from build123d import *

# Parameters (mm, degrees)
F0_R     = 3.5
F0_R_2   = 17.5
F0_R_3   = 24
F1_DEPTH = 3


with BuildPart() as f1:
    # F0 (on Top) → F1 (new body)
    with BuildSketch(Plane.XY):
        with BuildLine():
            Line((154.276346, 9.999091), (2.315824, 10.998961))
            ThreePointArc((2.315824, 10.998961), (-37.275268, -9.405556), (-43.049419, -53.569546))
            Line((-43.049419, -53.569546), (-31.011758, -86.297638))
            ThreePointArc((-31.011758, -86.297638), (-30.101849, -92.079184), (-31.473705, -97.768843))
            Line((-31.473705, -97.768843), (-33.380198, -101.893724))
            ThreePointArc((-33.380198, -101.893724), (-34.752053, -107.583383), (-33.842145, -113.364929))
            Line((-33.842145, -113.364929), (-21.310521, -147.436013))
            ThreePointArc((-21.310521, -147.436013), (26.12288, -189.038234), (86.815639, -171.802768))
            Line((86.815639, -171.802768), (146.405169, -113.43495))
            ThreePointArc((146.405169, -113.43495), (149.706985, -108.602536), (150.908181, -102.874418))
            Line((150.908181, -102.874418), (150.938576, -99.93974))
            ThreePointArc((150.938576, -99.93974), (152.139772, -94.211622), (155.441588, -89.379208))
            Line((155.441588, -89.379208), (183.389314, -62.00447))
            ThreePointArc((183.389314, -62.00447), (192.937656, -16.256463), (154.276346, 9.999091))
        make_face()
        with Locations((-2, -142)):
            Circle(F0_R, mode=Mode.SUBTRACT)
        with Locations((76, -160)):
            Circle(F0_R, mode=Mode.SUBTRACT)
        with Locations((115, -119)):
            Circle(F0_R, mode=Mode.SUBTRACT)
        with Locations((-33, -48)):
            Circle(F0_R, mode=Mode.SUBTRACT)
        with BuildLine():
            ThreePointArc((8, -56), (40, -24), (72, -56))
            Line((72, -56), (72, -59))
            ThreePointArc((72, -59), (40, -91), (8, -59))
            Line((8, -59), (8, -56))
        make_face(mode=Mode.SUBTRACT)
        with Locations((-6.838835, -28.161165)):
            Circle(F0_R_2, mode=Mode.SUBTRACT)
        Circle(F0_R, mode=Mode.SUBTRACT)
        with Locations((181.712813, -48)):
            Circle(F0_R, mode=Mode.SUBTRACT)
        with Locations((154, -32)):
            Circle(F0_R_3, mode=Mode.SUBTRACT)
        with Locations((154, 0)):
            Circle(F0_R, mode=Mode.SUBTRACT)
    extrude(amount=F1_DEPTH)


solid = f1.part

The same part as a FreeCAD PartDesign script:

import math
import FreeCAD as App
import Part
import Sketcher

V = App.Vector
Q = App.Units.Quantity

doc = App.newDocument("Part")
body = doc.addObject("PartDesign::Body", "Body")

# Sketch on XY plane
sketch1 = body.newObject("Sketcher::SketchObject", "Sketch")
sketch1.AttachmentSupport = (doc.getObject("XY_Plane"), [""])
sketch1.MapMode = "FlatFace"
sketch1.addGeometry([
    Part.LineSegment(V(154.276346, 9.999091, 0), V(2.315824, 10.998961, 0)),  # 0
    Part.ArcOfCircle(Part.Circle(V(2, -37, 0), V(0, 0, 1), 48), math.radians(89.62301), math.radians(200.193937)),  # 1
    Part.LineSegment(V(-43.049419, -53.569546, 0), V(-31.011758, -86.297638, 0)),  # 2
    Part.ArcOfCircle(Part.Circle(V(-45.089698, -91.475621, 0), V(0, 0, 1), 14.999997), math.radians(-24.806067), math.radians(20.193942)),  # 3
    Part.LineSegment(V(-31.473705, -97.768843, 0), V(-33.380198, -101.893724, 0)),  # 4
    Part.ArcOfCircle(Part.Circle(V(-19.764192, -108.186946, 0), V(0, 0, 1), 15.000009), math.radians(155.193952), math.radians(200.193922)),  # 5
    Part.LineSegment(V(-33.842145, -113.364929, 0), V(-21.310521, -147.436013, 0)),  # 6
    Part.ArcOfCircle(Part.Circle(V(40.632431, -124.652886, 0), V(0, 0, 1), 66.000001), math.radians(-159.806063), math.radians(-45.593405)),  # 7
    Part.LineSegment(V(86.815639, -171.802768, 0), V(146.405169, -113.43495, 0)),  # 8
    Part.ArcOfCircle(Part.Circle(V(135.908981, -102.719066, 0), V(0, 0, 1), 15.000004), math.radians(-45.593398), math.radians(-0.593412)),  # 9
    Part.LineSegment(V(150.908181, -102.874418, 0), V(150.938576, -99.93974, 0)),  # 10
    Part.ArcOfCircle(Part.Circle(V(165.937776, -100.095092, 0), V(0, 0, 1), 15.000004), math.radians(134.406602), math.radians(179.406588)),  # 11
    Part.LineSegment(V(155.441588, -89.379208, 0), V(183.389314, -62.00447, 0)),  # 12
    Part.ArcOfCircle(Part.Circle(V(154, -32, 0), V(0, 0, 1), 42), math.radians(-45.593405), math.radians(89.62301)),  # 13
    Part.Circle(V(-2, -142, 0), V(0, 0, 1), 3.5),  # 14
    Part.Circle(V(76, -160, 0), V(0, 0, 1), 3.5),  # 15
    Part.Circle(V(115, -119, 0), V(0, 0, 1), 3.5),  # 16
    Part.Circle(V(-33, -48, 0), V(0, 0, 1), 3.5),  # 17
    Part.LineSegment(V(8, -59, 0), V(8, -56, 0)),  # 18
    Part.ArcOfCircle(Part.Circle(V(40, -56, 0), V(0, 0, 1), 32), math.radians(0), math.radians(180)),  # 19
    Part.LineSegment(V(72, -56, 0), V(72, -59, 0)),  # 20
    Part.ArcOfCircle(Part.Circle(V(40, -59, 0), V(0, 0, 1), 32), math.radians(180), math.radians(360)),  # 21
    Part.Circle(V(-6.838835, -28.161165, 0), V(0, 0, 1), 17.5),  # 22
    Part.Circle(V(0, 0, 0), V(0, 0, 1), 3.5),  # 23
    Part.Circle(V(181.712813, -48, 0), V(0, 0, 1), 3.5),  # 24
    Part.Circle(V(154, -32, 0), V(0, 0, 1), 24),  # 25
    Part.Circle(V(154, 0, 0), V(0, 0, 1), 3.5),  # 26
], False)
sketch1.addConstraint([
    Sketcher.Constraint("Coincident", 0, 2, 1, 1),
    Sketcher.Constraint("Coincident", 1, 2, 2, 1),
    Sketcher.Constraint("Coincident", 2, 2, 3, 2),
    Sketcher.Constraint("Coincident", 3, 1, 4, 1),
    Sketcher.Constraint("Coincident", 4, 2, 5, 1),
    Sketcher.Constraint("Coincident", 5, 2, 6, 1),
    Sketcher.Constraint("Coincident", 6, 2, 7, 1),
    Sketcher.Constraint("Coincident", 7, 2, 8, 1),
    Sketcher.Constraint("Coincident", 8, 2, 9, 1),
    Sketcher.Constraint("Coincident", 9, 2, 10, 1),
    Sketcher.Constraint("Coincident", 10, 2, 11, 2),
    Sketcher.Constraint("Coincident", 11, 1, 12, 1),
    Sketcher.Constraint("Coincident", 12, 2, 13, 1),
    Sketcher.Constraint("Coincident", 13, 2, 0, 1),
    Sketcher.Constraint("Coincident", 18, 2, 19, 2),
    Sketcher.Constraint("Coincident", 19, 1, 20, 1),
    Sketcher.Constraint("Coincident", 20, 2, 21, 2),
    Sketcher.Constraint("Coincident", 21, 1, 18, 1),
    Sketcher.Constraint("Vertical", 18),
    Sketcher.Constraint("Vertical", 20),
    Sketcher.Constraint("Coincident", 23, 3, -1, 1),
    Sketcher.Constraint("Coincident", 25, 3, 13, 3),
    Sketcher.Constraint("PointOnObject", 26, 3, -1),
    Sketcher.Constraint("Diameter", 14, Q("7 mm")),
    Sketcher.Constraint("Diameter", 15, Q("7 mm")),
    Sketcher.Constraint("Diameter", 16, Q("7 mm")),
    Sketcher.Constraint("Diameter", 17, Q("7 mm")),
    Sketcher.Constraint("Diameter", 22, Q("35 mm")),
    Sketcher.Constraint("Diameter", 23, Q("7 mm")),
    Sketcher.Constraint("Diameter", 24, Q("7 mm")),
    Sketcher.Constraint("Diameter", 25, Q("48 mm")),
    Sketcher.Constraint("Diameter", 26, Q("7 mm")),
    Sketcher.Constraint("Radius", 1, Q("48 mm")),
    Sketcher.Constraint("Radius", 7, Q("66.000001 mm")),
    Sketcher.Constraint("Radius", 13, Q("42 mm")),
    Sketcher.Constraint("Radius", 19, Q("32 mm")),
    Sketcher.Constraint("DistanceY", 18, 1, 18, 2, Q("3 mm")),
    Sketcher.Constraint("DistanceY", 20, 2, 20, 1, Q("3 mm")),
    Sketcher.Constraint("DistanceX", -1, 1, 1, 3, Q("2 mm")),
    Sketcher.Constraint("DistanceY", 1, 3, -1, 1, Q("37 mm")),
    Sketcher.Constraint("DistanceX", -1, 1, 13, 3, Q("154 mm")),
    Sketcher.Constraint("DistanceY", 13, 3, -1, 1, Q("32 mm")),
    Sketcher.Constraint("DistanceX", 14, 3, -1, 1, Q("2 mm")),
    Sketcher.Constraint("DistanceY", 14, 3, -1, 1, Q("142 mm")),
    Sketcher.Constraint("DistanceX", -1, 1, 15, 3, Q("76 mm")),
    Sketcher.Constraint("DistanceY", 15, 3, -1, 1, Q("160 mm")),
    Sketcher.Constraint("DistanceX", -1, 1, 16, 3, Q("115 mm")),
    Sketcher.Constraint("DistanceY", 16, 3, -1, 1, Q("119 mm")),
    Sketcher.Constraint("DistanceX", 17, 3, -1, 1, Q("33 mm")),
    Sketcher.Constraint("DistanceY", 17, 3, -1, 1, Q("48 mm")),
    Sketcher.Constraint("DistanceX", -1, 1, 19, 3, Q("40 mm")),
    Sketcher.Constraint("DistanceY", 19, 3, -1, 1, Q("56 mm")),
    Sketcher.Constraint("DistanceY", 21, 3, -1, 1, Q("59 mm")),
    Sketcher.Constraint("DistanceY", 24, 3, -1, 1, Q("48 mm")),
    Sketcher.Constraint("DistanceX", -1, 1, 26, 3, Q("154 mm")),
    Sketcher.Constraint("DistanceY", 18, 2, -1, 1, Q("56 mm")),
    Sketcher.Constraint("DistanceY", 19, 1, -1, 1, Q("56 mm")),
    Sketcher.Constraint("Radius", 5, Q("15.000009 mm")),
    Sketcher.Constraint("Radius", 3, Q("14.999997 mm")),
    Sketcher.Constraint("Radius", 9, Q("15.000004 mm")),
    Sketcher.Constraint("Radius", 11, Q("15.000004 mm")),
    Sketcher.Constraint("DistanceY", 5, 3, 1, 2, Q("54.6174 mm")),
    Sketcher.Constraint("DistanceX", 3, 3, 4, 2, Q("11.7095 mm")),
    Sketcher.Constraint("DistanceX", 9, 3, 9, 2, Q("14.9992 mm")),
    Sketcher.Constraint("DistanceX", 10, 2, 11, 3, Q("14.9992 mm")),
    Sketcher.Constraint("DistanceX", 24, 3, 12, 2, Q("1.676501 mm")),
    Sketcher.Constraint("Distance", 0, Q("151.963811 mm")),
    Sketcher.Constraint("Distance", 2, Q("34.871669 mm")),
    Sketcher.Constraint("DistanceY", 3, 3, -1, 1, Q("91.475621 mm")),
    Sketcher.Constraint("DistanceX", -1, 1, 7, 3, Q("40.632431 mm")),
    Sketcher.Constraint("DistanceX", -1, 1, 9, 3, Q("135.908981 mm")),
    Sketcher.Constraint("DistanceY", -1, 1, 0, 2, Q("10.998961 mm")),
    Sketcher.Constraint("DistanceX", 1, 2, -1, 1, Q("43.049419 mm")),
    Sketcher.Constraint("DistanceX", 2, 2, -1, 1, Q("31.011758 mm")),
    Sketcher.Constraint("DistanceY", 5, 2, -1, 1, Q("113.364929 mm")),
    Sketcher.Constraint("DistanceX", 6, 2, -1, 1, Q("21.310521 mm")),
    Sketcher.Constraint("DistanceX", -1, 1, 7, 2, Q("86.815639 mm")),
    Sketcher.Constraint("DistanceX", -1, 1, 8, 2, Q("146.405169 mm")),
    Sketcher.Constraint("DistanceY", 8, 2, -1, 1, Q("113.43495 mm")),
    Sketcher.Constraint("DistanceY", 10, 2, -1, 1, Q("99.93974 mm")),
    Sketcher.Constraint("DistanceX", -1, 1, 11, 1, Q("155.441588 mm")),
    Sketcher.Constraint("DistanceY", 11, 1, -1, 1, Q("89.379208 mm")),
    Sketcher.Constraint("DistanceY", 12, 2, -1, 1, Q("62.00447 mm")),
    Sketcher.Constraint("DistanceX", 5, 3, 1, 3, Q("21.764192 mm")),
    Sketcher.Constraint("DistanceY", 7, 3, 5, 3, Q("16.465939 mm")),
    Sketcher.Constraint("DistanceX", 22, 3, 0, 2, Q("9.154659 mm")),
    Sketcher.Constraint("DistanceY", 1, 2, 22, 3, Q("25.408381 mm")),
    Sketcher.Constraint("DistanceY", 3, 1, 3, 3, Q("6.293222 mm")),
])
pad1 = body.newObject("PartDesign::Pad", "Pad")
pad1.Profile = sketch1
pad1.Length = 3

doc.recompute()
